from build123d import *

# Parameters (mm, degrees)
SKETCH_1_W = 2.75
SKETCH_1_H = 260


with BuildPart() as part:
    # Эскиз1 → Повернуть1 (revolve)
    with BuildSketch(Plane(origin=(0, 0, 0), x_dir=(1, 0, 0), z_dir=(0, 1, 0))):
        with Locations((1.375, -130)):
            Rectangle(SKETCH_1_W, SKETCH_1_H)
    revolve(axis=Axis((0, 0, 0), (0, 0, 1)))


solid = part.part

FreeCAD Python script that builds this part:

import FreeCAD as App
import Part
import Sketcher
Q = App.Units.Quantity

doc = App.newDocument("Part")
body = doc.addObject("PartDesign::Body", "Body")

# Sketch on XZ plane
sketch1 = body.newObject("Sketcher::SketchObject", "Sketch")
sketch1.AttachmentSupport = (doc.getObject("XZ_Plane"), [""])
sketch1.MapMode = "FlatFace"
sketch1.addGeometry([
    Part.LineSegment(App.Vector(0, 0, 0), App.Vector(0, 260, 0)),
    Part.LineSegment(App.Vector(0, 260, 0), App.Vector(2.8, 260, 0)),
    Part.LineSegment(App.Vector(2.8, 260, 0), App.Vector(2.8, 0, 0)),
    Part.LineSegment(App.Vector(2.8, 0, 0), App.Vector(0, 0, 0)),
], False)
sketch1.addConstraint([
    Sketcher.Constraint("Coincident", 0, 2, 1, 1),
    Sketcher.Constraint("Coincident", 1, 2, 2, 1),
    Sketcher.Constraint("Coincident", 2, 2, 3, 1),
    Sketcher.Constraint("Coincident", 3, 2, 0, 1),
    Sketcher.Constraint("Vertical", 0),
    Sketcher.Constraint("Horizontal", 1),
    Sketcher.Constraint("Vertical", 2),
    Sketcher.Constraint("Horizontal", 3),
    Sketcher.Constraint("Coincident", 3, 2, -1, 1),
    Sketcher.Constraint("DistanceY", 0, 1, 0, 2, Q("260 mm")),
    Sketcher.Constraint("DistanceX", 1, 1, 1, 2, Q("2.75 mm")),
])
revolution = body.newObject("PartDesign::Revolution", "Revolution")
revolution.Profile = sketch1
revolution.ReferenceAxis = (sketch1, ["V_Axis"])
revolution.Angle = 360

doc.recompute()
